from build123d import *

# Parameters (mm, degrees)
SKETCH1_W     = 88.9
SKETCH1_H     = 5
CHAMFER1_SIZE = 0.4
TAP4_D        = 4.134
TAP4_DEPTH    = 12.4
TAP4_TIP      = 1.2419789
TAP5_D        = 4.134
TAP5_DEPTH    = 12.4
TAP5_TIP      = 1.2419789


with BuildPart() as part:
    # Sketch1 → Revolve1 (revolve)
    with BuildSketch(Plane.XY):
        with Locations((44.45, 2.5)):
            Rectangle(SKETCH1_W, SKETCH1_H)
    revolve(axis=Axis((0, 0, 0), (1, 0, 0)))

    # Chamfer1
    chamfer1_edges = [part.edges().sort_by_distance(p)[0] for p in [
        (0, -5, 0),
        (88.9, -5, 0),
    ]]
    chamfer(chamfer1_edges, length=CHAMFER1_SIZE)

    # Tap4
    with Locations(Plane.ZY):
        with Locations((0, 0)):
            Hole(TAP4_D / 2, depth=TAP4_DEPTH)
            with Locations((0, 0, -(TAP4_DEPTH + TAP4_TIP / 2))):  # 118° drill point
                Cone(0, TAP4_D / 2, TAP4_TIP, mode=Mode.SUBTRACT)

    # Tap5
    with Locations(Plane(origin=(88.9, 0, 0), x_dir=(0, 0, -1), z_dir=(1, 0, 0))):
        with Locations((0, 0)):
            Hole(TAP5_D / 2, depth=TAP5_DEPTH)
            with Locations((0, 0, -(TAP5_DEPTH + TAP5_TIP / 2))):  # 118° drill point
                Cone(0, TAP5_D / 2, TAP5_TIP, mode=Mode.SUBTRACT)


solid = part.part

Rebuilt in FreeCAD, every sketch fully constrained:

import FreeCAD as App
import Part
import Sketcher


def edges_at(feature, points):
    """Names of the edges that pass closest to the given points."""
    edges = feature.Shape.Edges
    near = lambda p: min(range(len(edges)), key=lambda i: edges[i].distToShape(Part.Vertex(*p))[0])
    return sorted({f"Edge{near(p) + 1}" for p in points})

doc = App.newDocument("Part")
body = doc.addObject("PartDesign::Body", "Body")

# Sketch on XY plane
sketch1 = body.newObject("Sketcher::SketchObject", "Sketch")
sketch1.AttachmentSupport = (doc.getObject("XY_Plane"), [""])
sketch1.MapMode = "FlatFace"
sketch1.addGeometry(Part.LineSegment(App.Vector(0, 5, 0), App.Vector(0, 0, 0)), False)
sketch1.addGeometry(Part.LineSegment(App.Vector(0, 0, 0), App.Vector(89, 0, 0)), False)
sketch1.addGeometry(Part.LineSegment(App.Vector(89, 0, 0), App.Vector(89, 5, 0)), False)
sketch1.addGeometry(Part.LineSegment(App.Vector(89, 5, 0), App.Vector(0, 5, 0)), False)
sketch1.addConstraint(Sketcher.Constraint("Coincident", 0, 2, 1, 1))
sketch1.addConstraint(Sketcher.Constraint("Coincident", 1, 2, 2, 1))
sketch1.addConstraint(Sketcher.Constraint("Coincident", 2, 2, 3, 1))
sketch1.addConstraint(Sketcher.Constraint("Coincident", 3, 2, 0, 1))
sketch1.addConstraint(Sketcher.Constraint("Vertical", 0))
sketch1.addConstraint(Sketcher.Constraint("Horizontal", 1))
sketch1.addConstraint(Sketcher.Constraint("Vertical", 2))
sketch1.addConstraint(Sketcher.Constraint("Horizontal", 3))
sketch1.addConstraint(Sketcher.Constraint("Coincident", 0, 2, -1, 1))
sketch1.addConstraint(Sketcher.Constraint("DistanceY", 0, 2, 0, 1, 5.0))
sketch1.addConstraint(Sketcher.Constraint("DistanceX", 1, 1, 1, 2, 88.9))
revolution = body.newObject("PartDesign::Revolution", "Revolution")
revolution.Profile = sketch1
revolution.ReferenceAxis = (sketch1, ["H_Axis"])
revolution.Angle = 360
doc.recompute()

chamfer = body.newObject("PartDesign::Chamfer", "Chamfer")
chamfer.Base = (revolution, edges_at(revolution, [(0, -5, 0), (88.9, -5, 0)]))
chamfer.Size = 0.4

# Sketch on YZ plane
sketch2 = body.newObject("Sketcher::SketchObject", "Sketch001")
sketch2.AttachmentSupport = (doc.getObject("YZ_Plane"), [""])
sketch2.MapMode = "FlatFace"
sketch2.addGeometry(Part.Circle(App.Vector(0, 0, 0), App.Vector(0, 0, 1), 2.1), False)
sketch2.addConstraint(Sketcher.Constraint("Coincident", 0, 3, -1, 1))
sketch2.addConstraint(Sketcher.Constraint("Diameter", 0, 4.134))
doc.recompute()
hole = body.newObject("PartDesign::Hole", "Hole")
hole.Profile = sketch2
hole.ThreadType = "None"
hole.Diameter = 4.134
hole.DepthType = "Dimension"
hole.Depth = 12.4
hole.DrillPoint = "Angled"
hole.DrillPointAngle = 118
hole.Reversed = True

# Sketch on YZ plane
sketch3 = body.newObject("Sketcher::SketchObject", "Sketch002")
sketch3.AttachmentSupport = (doc.getObject("YZ_Plane"), [""])
sketch3.MapMode = "FlatFace"
sketch3.AttachmentOffset = App.Placement(App.Vector(0, 0, 88.9), App.Rotation())
sketch3.addGeometry(Part.Circle(App.Vector(0, 0, 0), App.Vector(0, 0, 1), 2.1), False)
sketch3.addConstraint(Sketcher.Constraint("Coincident", 0, 3, -1, 1))
sketch3.addConstraint(Sketcher.Constraint("Diameter", 0, 4.134))
doc.recompute()
hole2 = body.newObject("PartDesign::Hole", "Hole001")
hole2.Profile = sketch3
hole2.ThreadType = "None"
hole2.Diameter = 4.134
hole2.DepthType = "Dimension"
hole2.Depth = 12.4
hole2.DrillPoint = "Angled"
hole2.DrillPointAngle = 118

doc.recompute()
